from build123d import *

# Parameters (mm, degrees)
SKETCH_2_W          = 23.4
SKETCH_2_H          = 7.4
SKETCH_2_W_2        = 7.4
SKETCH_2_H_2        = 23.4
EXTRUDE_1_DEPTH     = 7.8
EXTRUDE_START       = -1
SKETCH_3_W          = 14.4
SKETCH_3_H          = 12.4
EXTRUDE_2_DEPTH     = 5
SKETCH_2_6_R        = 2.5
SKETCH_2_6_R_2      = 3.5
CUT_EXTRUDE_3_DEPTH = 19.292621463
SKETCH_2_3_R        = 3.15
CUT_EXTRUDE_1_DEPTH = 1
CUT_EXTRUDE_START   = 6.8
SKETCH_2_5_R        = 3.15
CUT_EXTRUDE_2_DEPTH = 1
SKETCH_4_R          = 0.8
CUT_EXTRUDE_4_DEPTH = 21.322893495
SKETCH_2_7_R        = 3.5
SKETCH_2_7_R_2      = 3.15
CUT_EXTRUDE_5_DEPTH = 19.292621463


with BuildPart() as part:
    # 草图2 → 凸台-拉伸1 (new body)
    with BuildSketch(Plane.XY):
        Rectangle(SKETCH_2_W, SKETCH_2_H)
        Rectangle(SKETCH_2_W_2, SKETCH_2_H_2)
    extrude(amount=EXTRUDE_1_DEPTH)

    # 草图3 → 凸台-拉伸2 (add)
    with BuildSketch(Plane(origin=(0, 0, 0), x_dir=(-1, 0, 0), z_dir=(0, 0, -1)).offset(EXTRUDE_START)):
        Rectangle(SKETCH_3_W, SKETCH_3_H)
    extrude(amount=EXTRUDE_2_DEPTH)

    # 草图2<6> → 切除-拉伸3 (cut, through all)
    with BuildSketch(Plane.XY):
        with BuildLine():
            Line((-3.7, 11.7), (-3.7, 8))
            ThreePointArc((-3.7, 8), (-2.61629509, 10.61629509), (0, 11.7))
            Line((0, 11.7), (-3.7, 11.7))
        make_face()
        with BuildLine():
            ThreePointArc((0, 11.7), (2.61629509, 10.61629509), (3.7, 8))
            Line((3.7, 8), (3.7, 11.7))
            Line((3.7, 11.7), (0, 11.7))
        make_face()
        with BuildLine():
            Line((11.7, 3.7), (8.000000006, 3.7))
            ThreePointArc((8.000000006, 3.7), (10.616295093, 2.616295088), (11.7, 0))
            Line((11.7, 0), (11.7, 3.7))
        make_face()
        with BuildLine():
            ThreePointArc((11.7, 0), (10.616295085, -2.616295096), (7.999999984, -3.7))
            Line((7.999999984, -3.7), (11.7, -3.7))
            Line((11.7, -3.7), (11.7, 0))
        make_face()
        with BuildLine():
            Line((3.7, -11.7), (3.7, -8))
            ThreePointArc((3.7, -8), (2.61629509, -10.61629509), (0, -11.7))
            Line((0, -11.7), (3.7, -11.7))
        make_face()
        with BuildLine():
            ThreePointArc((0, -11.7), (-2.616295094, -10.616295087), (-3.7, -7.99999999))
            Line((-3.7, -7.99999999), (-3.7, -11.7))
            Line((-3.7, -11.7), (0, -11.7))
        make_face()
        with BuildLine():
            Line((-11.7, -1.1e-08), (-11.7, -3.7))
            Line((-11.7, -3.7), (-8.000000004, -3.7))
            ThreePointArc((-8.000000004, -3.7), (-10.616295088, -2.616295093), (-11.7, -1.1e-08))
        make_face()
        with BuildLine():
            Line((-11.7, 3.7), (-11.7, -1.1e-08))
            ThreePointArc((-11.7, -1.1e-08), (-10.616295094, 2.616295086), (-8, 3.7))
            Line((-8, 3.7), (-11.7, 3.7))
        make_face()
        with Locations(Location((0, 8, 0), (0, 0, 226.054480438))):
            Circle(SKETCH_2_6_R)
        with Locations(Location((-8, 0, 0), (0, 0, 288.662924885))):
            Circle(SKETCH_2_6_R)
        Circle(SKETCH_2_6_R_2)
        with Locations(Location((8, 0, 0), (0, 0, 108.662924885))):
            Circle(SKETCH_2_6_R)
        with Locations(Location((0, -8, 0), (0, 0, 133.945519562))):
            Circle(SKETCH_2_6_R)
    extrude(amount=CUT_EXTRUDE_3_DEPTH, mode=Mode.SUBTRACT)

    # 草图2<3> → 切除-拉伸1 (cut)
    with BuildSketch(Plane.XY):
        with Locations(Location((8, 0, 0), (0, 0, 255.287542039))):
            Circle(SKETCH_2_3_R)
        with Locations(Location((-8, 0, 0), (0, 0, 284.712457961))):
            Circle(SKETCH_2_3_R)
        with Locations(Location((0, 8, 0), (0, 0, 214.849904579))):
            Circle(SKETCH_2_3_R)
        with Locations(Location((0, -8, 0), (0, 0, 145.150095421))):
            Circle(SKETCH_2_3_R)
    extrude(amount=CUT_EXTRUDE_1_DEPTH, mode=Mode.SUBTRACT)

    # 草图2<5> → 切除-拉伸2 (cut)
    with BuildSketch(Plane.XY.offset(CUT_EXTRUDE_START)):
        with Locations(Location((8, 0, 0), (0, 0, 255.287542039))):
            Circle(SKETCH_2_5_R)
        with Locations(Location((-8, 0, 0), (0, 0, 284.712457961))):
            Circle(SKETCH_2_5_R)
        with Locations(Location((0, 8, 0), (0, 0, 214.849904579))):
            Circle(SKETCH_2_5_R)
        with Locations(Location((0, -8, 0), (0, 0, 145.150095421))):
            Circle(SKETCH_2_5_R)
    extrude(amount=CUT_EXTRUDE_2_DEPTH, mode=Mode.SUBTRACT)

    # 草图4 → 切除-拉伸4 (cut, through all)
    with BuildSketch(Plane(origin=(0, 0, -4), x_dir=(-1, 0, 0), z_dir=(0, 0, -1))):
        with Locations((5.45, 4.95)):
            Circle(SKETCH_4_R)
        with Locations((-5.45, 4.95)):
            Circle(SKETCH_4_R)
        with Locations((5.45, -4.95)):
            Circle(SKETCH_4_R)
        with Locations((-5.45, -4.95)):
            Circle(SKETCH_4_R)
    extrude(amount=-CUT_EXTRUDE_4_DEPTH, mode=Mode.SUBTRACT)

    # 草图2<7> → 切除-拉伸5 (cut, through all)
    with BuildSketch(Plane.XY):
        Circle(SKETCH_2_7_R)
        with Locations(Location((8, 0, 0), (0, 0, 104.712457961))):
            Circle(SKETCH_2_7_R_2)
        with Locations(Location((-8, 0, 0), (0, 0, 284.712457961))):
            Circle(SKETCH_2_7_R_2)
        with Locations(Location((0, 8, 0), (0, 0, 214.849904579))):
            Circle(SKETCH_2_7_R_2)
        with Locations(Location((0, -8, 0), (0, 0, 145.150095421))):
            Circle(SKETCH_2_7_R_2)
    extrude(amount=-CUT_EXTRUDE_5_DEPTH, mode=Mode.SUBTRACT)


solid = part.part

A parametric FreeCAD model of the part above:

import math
import FreeCAD as App
import Part
import Sketcher
Q = App.Units.Quantity

doc = App.newDocument("Part")
body = doc.addObject("PartDesign::Body", "Body")

sketch1 = body.newObject("Sketcher::SketchObject", "Sketch")
sketch1.AttachmentSupport = (doc.getObject("XY_Plane"), [""])
sketch1.MapMode = "FlatFace"
sketch1.addGeometry([
    Part.LineSegment(App.Vector(-12, 4, 0), App.Vector(-12, -4, 0)),
    Part.LineSegment(App.Vector(-12, -4, 0), App.Vector(-4, -4, 0)),
    Part.LineSegment(App.Vector(-4, -4, 0), App.Vector(-4, -12, 0)),
    Part.LineSegment(App.Vector(-4, -12, 0), App.Vector(4, -12, 0)),
    Part.LineSegment(App.Vector(4, -12, 0), App.Vector(4, -4, 0)),
    Part.LineSegment(App.Vector(4, -4, 0), App.Vector(12, -4, 0)),
    Part.LineSegment(App.Vector(12, -4, 0), App.Vector(12, 4, 0)),
    Part.LineSegment(App.Vector(12, 4, 0), App.Vector(4, 4, 0)),
    Part.LineSegment(App.Vector(4, 4, 0), App.Vector(4, 12, 0)),
    Part.LineSegment(App.Vector(4, 12, 0), App.Vector(-4, 12, 0)),
    Part.LineSegment(App.Vector(-4, 12, 0), App.Vector(-4, 4, 0)),
    Part.LineSegment(App.Vector(-4, 4, 0), App.Vector(-12, 4, 0)),
], False)
sketch1.addConstraint([
    Sketcher.Constraint("Coincident", 0, 2, 1, 1),
    Sketcher.Constraint("Coincident", 1, 2, 2, 1),
    Sketcher.Constraint("Coincident", 2, 2, 3, 1),
    Sketcher.Constraint("Coincident", 3, 2, 4, 1),
    Sketcher.Constraint("Coincident", 4, 2, 5, 1),
    Sketcher.Constraint("Coincident", 5, 2, 6, 1),
    Sketcher.Constraint("Coincident", 6, 2, 7, 1),
    Sketcher.Constraint("Coincident", 7, 2, 8, 1),
    Sketcher.Constraint("Coincident", 8, 2, 9, 1),
    Sketcher.Constraint("Coincident", 9, 2, 10, 1),
    Sketcher.Constraint("Coincident", 10, 2, 11, 1),
    Sketcher.Constraint("Coincident", 11, 2, 0, 1),
    Sketcher.Constraint("Vertical", 0),
    Sketcher.Constraint("Horizontal", 1),
    Sketcher.Constraint("Vertical", 2),
    Sketcher.Constraint("Horizontal", 3),
    Sketcher.Constraint("Vertical", 4),
    Sketcher.Constraint("Horizontal", 5),
    Sketcher.Constraint("Vertical", 6),
    Sketcher.Constraint("Horizontal", 7),
    Sketcher.Constraint("Vertical", 8),
    Sketcher.Constraint("Horizontal", 9),
    Sketcher.Constraint("Vertical", 10),
    Sketcher.Constraint("Horizontal", 11),
    Sketcher.Constraint("Symmetric", 0, 2, 6, 2, -1, 1),
    Sketcher.Constraint("Symmetric", 2, 2, 8, 2, -1, 1),
    Sketcher.Constraint("Symmetric", 4, 2, 10, 2, -1, 1),
    Sketcher.Constraint("Symmetric", 1, 2, 4, 2, -2),
    Sketcher.Constraint("Equal", 9, 0),
    Sketcher.Constraint("Equal", 11, 2),
    Sketcher.Constraint("DistanceX", 1, 1, 1, 2, Q("8 mm")),
    Sketcher.Constraint("DistanceX", 3, 1, 3, 2, Q("7.4 mm")),
])
pad1 = body.newObject("PartDesign::Pad", "Pad")
pad1.Profile = sketch1
pad1.Length = 7.8

sketch2 = body.newObject("Sketcher::SketchObject", "Sketch001")
sketch2.AttachmentSupport = (doc.getObject("XY_Plane"), [""])
sketch2.MapMode = "FlatFace"
sketch2.AttachmentOffset = App.Placement(App.Vector(0, 0, 1), App.Rotation())
sketch2.addGeometry([
    Part.LineSegment(App.Vector(7, 6, 0), App.Vector(7, -6, 0)),
    Part.LineSegment(App.Vector(7, -6, 0), App.Vector(-7, -6, 0)),
    Part.LineSegment(App.Vector(-7, -6, 0), App.Vector(-7, 6, 0)),
    Part.LineSegment(App.Vector(-7, 6, 0), App.Vector(7, 6, 0)),
], False)
sketch2.addConstraint([
    Sketcher.Constraint("Coincident", 0, 2, 1, 1),
    Sketcher.Constraint("Coincident", 1, 2, 2, 1),
    Sketcher.Constraint("Coincident", 2, 2, 3, 1),
    Sketcher.Constraint("Coincident", 3, 2, 0, 1),
    Sketcher.Constraint("Vertical", 0),
    Sketcher.Constraint("Horizontal", 1),
    Sketcher.Constraint("Vertical", 2),
    Sketcher.Constraint("Horizontal", 3),
    Sketcher.Constraint("Symmetric", 0, 2, 2, 2, -1, 1),
    Sketcher.Constraint("DistanceX", 1, 2, 1, 1, Q("14.4 mm")),
    Sketcher.Constraint("DistanceY", 0, 2, 0, 1, Q("12.4 mm")),
])
pad2 = body.newObject("PartDesign::Pad", "Pad001")
pad2.Profile = sketch2
pad2.Length = 5
pad2.Reversed = True

sketch3 = body.newObject("Sketcher::SketchObject", "Sketch002")
sketch3.AttachmentSupport = (doc.getObject("XY_Plane"), [""])
sketch3.MapMode = "FlatFace"
sketch3.addGeometry([
    Part.LineSegment(App.Vector(-3.7, 11.7, 0), App.Vector(-3.7, 8, 0)),
    Part.ArcOfCircle(Part.Circle(App.Vector(0, 8, 0), App.Vector(0, 0, 1), 3.7), math.radians(90), math.radians(180)),
    Part.LineSegment(App.Vector(0, 11.7, 0), App.Vector(-3.7, 11.7, 0)),
    Part.ArcOfCircle(Part.Circle(App.Vector(0, 8, 0), App.Vector(0, 0, 1), 3.7), math.radians(0), math.radians(90)),
    Part.LineSegment(App.Vector(3.7, 8, 0), App.Vector(3.7, 11.7, 0)),
    Part.LineSegment(App.Vector(3.7, 11.7, 0), App.Vector(0, 11.7, 0)),
    Part.LineSegment(App.Vector(11.7, 3.7, 0), App.Vector(8, 3.7, 0)),
    Part.ArcOfCircle(Part.Circle(App.Vector(8, 0, 0), App.Vector(0, 0, 1), 3.7), math.radians(0), math.radians(90)),
    Part.LineSegment(App.Vector(11.7, 0, 0), App.Vector(11.7, 3.7, 0)),
    Part.ArcOfCircle(Part.Circle(App.Vector(8, 0, 0), App.Vector(0, 0, 1), 3.7), math.radians(-90), math.radians(0)),
    Part.LineSegment(App.Vector(8, -3.7, 0), App.Vector(11.7, -3.7, 0)),
    Part.LineSegment(App.Vector(11.7, -3.7, 0), App.Vector(11.7, 0, 0)),
    Part.LineSegment(App.Vector(3.7, -11.7, 0), App.Vector(3.7, -8, 0)),
    Part.ArcOfCircle(Part.Circle(App.Vector(0, -8, 0), App.Vector(0, 0, 1), 3.7), math.radians(-90), math.radians(0)),
    Part.LineSegment(App.Vector(0, -11.7, 0), App.Vector(3.7, -11.7, 0)),
    Part.ArcOfCircle(Part.Circle(App.Vector(0, -8, 0), App.Vector(0, 0, 1), 3.7), math.radians(180), math.radians(270)),
    Part.LineSegment(App.Vector(-3.7, -8, 0), App.Vector(-3.7, -11.7, 0)),
    Part.LineSegment(App.Vector(-3.7, -11.7, 0), App.Vector(0, -11.7, 0)),
    Part.LineSegment(App.Vector(-11.7, 0, 0), App.Vector(-11.7, -3.7, 0)),
    Part.LineSegment(App.Vector(-11.7, -3.7, 0), App.Vector(-8, -3.7, 0)),
    Part.ArcOfCircle(Part.Circle(App.Vector(-8, 0, 0), App.Vector(0, 0, 1), 3.7), math.radians(-180), math.radians(-90)),
    Part.LineSegment(App.Vector(-11.7, 3.7, 0), App.Vector(-11.7, 0, 0)),
    Part.ArcOfCircle(Part.Circle(App.Vector(-8, 0, 0), App.Vector(0, 0, 1), 3.7), math.radians(90), math.radians(180)),
    Part.LineSegment(App.Vector(-8, 3.7, 0), App.Vector(-11.7, 3.7, 0)),
    Part.Circle(App.Vector(0, 8, 0), App.Vector(0, 0, 1), 2.5),
    Part.Circle(App.Vector(-8, 0, 0), App.Vector(0, 0, 1), 2.5),
    Part.Circle(App.Vector(0, 0, 0), App.Vector(0, 0, 1), 3.5),
    Part.Circle(App.Vector(8, 0, 0), App.Vector(0, 0, 1), 2.5),
    Part.Circle(App.Vector(0, -8, 0), App.Vector(0, 0, 1), 2.5),
], False)
sketch3.addConstraint([
    Sketcher.Constraint("Tangent", 0, 2, 1, 2),
    Sketcher.Constraint("Tangent", 1, 1, 2, 1),
    Sketcher.Constraint("Coincident", 2, 2, 0, 1),
    Sketcher.Constraint("Tangent", 3, 1, 4, 1),
    Sketcher.Constraint("Coincident", 4, 2, 5, 1),
    Sketcher.Constraint("Tangent", 5, 2, 3, 2),
    Sketcher.Constraint("Tangent", 6, 2, 7, 2),
    Sketcher.Constraint("Tangent", 7, 1, 8, 1),
    Sketcher.Constraint("Coincident", 8, 2, 6, 1),
    Sketcher.Constraint("Tangent", 9, 1, 10, 1),
    Sketcher.Constraint("Coincident", 10, 2, 11, 1),
    Sketcher.Constraint("Tangent", 11, 2, 9, 2),
    Sketcher.Constraint("Tangent", 12, 2, 13, 2),
    Sketcher.Constraint("Tangent", 13, 1, 14, 1),
    Sketcher.Constraint("Coincident", 14, 2, 12, 1),
    Sketcher.Constraint("Tangent", 15, 1, 16, 1),
    Sketcher.Constraint("Coincident", 16, 2, 17, 1),
    Sketcher.Constraint("Tangent", 17, 2, 15, 2),
    Sketcher.Constraint("Coincident", 18, 2, 19, 1),
    Sketcher.Constraint("Tangent", 19, 2, 20, 2),
    Sketcher.Constraint("Tangent", 20, 1, 18, 1),
    Sketcher.Constraint("Tangent", 21, 2, 22, 2),
    Sketcher.Constraint("Tangent", 22, 1, 23, 1),
    Sketcher.Constraint("Coincident", 23, 2, 21, 1),
    Sketcher.Constraint("Vertical", 0),
    Sketcher.Constraint("Horizontal", 2),
    Sketcher.Constraint("Vertical", 4),
    Sketcher.Constraint("Horizontal", 5),
    Sketcher.Constraint("Horizontal", 6),
    Sketcher.Constraint("Vertical", 8),
    Sketcher.Constraint("Horizontal", 10),
    Sketcher.Constraint("Vertical", 11),
    Sketcher.Constraint("Vertical", 12),
    Sketcher.Constraint("Horizontal", 14),
    Sketcher.Constraint("Vertical", 16),
    Sketcher.Constraint("Horizontal", 17),
    Sketcher.Constraint("Vertical", 18),
    Sketcher.Constraint("Horizontal", 19),
    Sketcher.Constraint("Vertical", 21),
    Sketcher.Constraint("Horizontal", 23),
    Sketcher.Constraint("Coincident", 26, 3, -1, 1),
    Sketcher.Constraint("Coincident", 3, 3, 1, 3),
    Sketcher.Constraint("Coincident", 9, 3, 7, 3),
    Sketcher.Constraint("Coincident", 15, 3, 13, 3),
    Sketcher.Constraint("Coincident", 22, 3, 20, 3),
    Sketcher.Constraint("Coincident", 24, 3, 1, 3),
    Sketcher.Constraint("Coincident", 25, 3, 20, 3),
    Sketcher.Constraint("Coincident", 27, 3, 7, 3),
    Sketcher.Constraint("Coincident", 28, 3, 13, 3),
    Sketcher.Constraint("Equal", 1, 3),
    Sketcher.Constraint("Equal", 3, 7),
    Sketcher.Constraint("Equal", 7, 9),
    Sketcher.Constraint("Equal", 9, 13),
    Sketcher.Constraint("Equal", 13, 15),
    Sketcher.Constraint("Equal", 15, 20),
    Sketcher.Constraint("Equal", 20, 22),
    Sketcher.Constraint("Equal", 24, 25),
    Sketcher.Constraint("Equal", 25, 27),
    Sketcher.Constraint("Equal", 27, 28),
    Sketcher.Constraint("Symmetric", 1, 3, 13, 3, -1, 1),
    Sketcher.Constraint("Symmetric", 7, 3, 20, 3, -1, 1),
    Sketcher.Constraint("PointOnObject", 1, 3, -2),
    Sketcher.Constraint("PointOnObject", 7, 3, -1),
    Sketcher.Constraint("Diameter", 24, Q("5 mm")),
    Sketcher.Constraint("Diameter", 26, Q("7 mm")),
    Sketcher.Constraint("Radius", 1, Q("3.7 mm")),
    Sketcher.Constraint("DistanceY", -1, 1, 1, 3, Q("8 mm")),
    Sketcher.Constraint("DistanceX", -1, 1, 7, 3, Q("8 mm")),
])
pocket1 = body.newObject("PartDesign::Pocket", "Pocket")
pocket1.Profile = sketch3
pocket1.Type = "ThroughAll"
pocket1.Reversed = True

sketch4 = body.newObject("Sketcher::SketchObject", "Sketch003")
sketch4.AttachmentSupport = (doc.getObject("XY_Plane"), [""])
sketch4.MapMode = "FlatFace"
sketch4.addGeometry([
    Part.Circle(App.Vector(8, 0, 0), App.Vector(0, 0, 1), 3.1),
    Part.Circle(App.Vector(-8, 0, 0), App.Vector(0, 0, 1), 3.1),
    Part.Circle(App.Vector(0, 8, 0), App.Vector(0, 0, 1), 3.1),
    Part.Circle(App.Vector(0, -8, 0), App.Vector(0, 0, 1), 3.1),
], False)
sketch4.addConstraint([
    Sketcher.Constraint("Equal", 0, 1),
    Sketcher.Constraint("Equal", 1, 2),
    Sketcher.Constraint("Equal", 2, 3),
    Sketcher.Constraint("Symmetric", 0, 3, 1, 3, -1, 1),
    Sketcher.Constraint("Symmetric", 2, 3, 3, 3, -1, 1),
    Sketcher.Constraint("PointOnObject", 0, 3, -1),
    Sketcher.Constraint("PointOnObject", 2, 3, -2),
    Sketcher.Constraint("Diameter", 0, Q("6.3 mm")),
    Sketcher.Constraint("DistanceX", -1, 1, 0, 3, Q("8 mm")),
    Sketcher.Constraint("DistanceY", -1, 1, 2, 3, Q("8 mm")),
])
pocket2 = body.newObject("PartDesign::Pocket", "Pocket001")
pocket2.Profile = sketch4
pocket2.Length = 1
pocket2.Reversed = True

sketch5 = body.newObject("Sketcher::SketchObject", "Sketch004")
sketch5.AttachmentSupport = (doc.getObject("XY_Plane"), [""])
sketch5.MapMode = "FlatFace"
sketch5.AttachmentOffset = App.Placement(App.Vector(0, 0, 6.8), App.Rotation())
sketch5.addGeometry([
    Part.Circle(App.Vector(8, 0, 0), App.Vector(0, 0, 1), 3.1),
    Part.Circle(App.Vector(-8, 0, 0), App.Vector(0, 0, 1), 3.1),
    Part.Circle(App.Vector(0, 8, 0), App.Vector(0, 0, 1), 3.1),
    Part.Circle(App.Vector(0, -8, 0), App.Vector(0, 0, 1), 3.1),
], False)
sketch5.addConstraint([
    Sketcher.Constraint("Equal", 0, 1),
    Sketcher.Constraint("Equal", 1, 2),
    Sketcher.Constraint("Equal", 2, 3),
    Sketcher.Constraint("Symmetric", 0, 3, 1, 3, -1, 1),
    Sketcher.Constraint("Symmetric", 2, 3, 3, 3, -1, 1),
    Sketcher.Constraint("PointOnObject", 0, 3, -1),
    Sketcher.Constraint("PointOnObject", 2, 3, -2),
    Sketcher.Constraint("Diameter", 0, Q("6.3 mm")),
    Sketcher.Constraint("DistanceX", -1, 1, 0, 3, Q("8 mm")),
    Sketcher.Constraint("DistanceY", -1, 1, 2, 3, Q("8 mm")),
])
pocket3 = body.newObject("PartDesign::Pocket", "Pocket002")
pocket3.Profile = sketch5
pocket3.Length = 1
pocket3.Reversed = True

sketch6 = body.newObject("Sketcher::SketchObject", "Sketch005")
sketch6.AttachmentSupport = (doc.getObject("XY_Plane"), [""])
sketch6.MapMode = "FlatFace"
sketch6.AttachmentOffset = App.Placement(App.Vector(0, 0, -4), App.Rotation())
sketch6.addGeometry([
    Part.Circle(App.Vector(-5.5, 5, 0), App.Vector(0, 0, 1), 0.8),
    Part.Circle(App.Vector(5.5, 5, 0), App.Vector(0, 0, 1), 0.8),
    Part.Circle(App.Vector(-5.5, -5, 0), App.Vector(0, 0, 1), 0.8),
    Part.Circle(App.Vector(5.5, -5, 0), App.Vector(0, 0, 1), 0.8),
], False)
sketch6.addConstraint([
    Sketcher.Constraint("Equal", 0, 1),
    Sketcher.Constraint("Equal", 1, 2),
    Sketcher.Constraint("Equal", 2, 3),
    Sketcher.Constraint("Symmetric", 1, 3, 2, 3, -1, 1),
    Sketcher.Constraint("Symmetric", 0, 3, 3, 3, -1, 1),
    Sketcher.Constraint("Symmetric", 0, 3, 1, 3, -2),
    Sketcher.Constraint("Diameter", 0, Q("1.6 mm")),
    Sketcher.Constraint("DistanceX", 0, 3, 1, 3, Q("10.9 mm")),
    Sketcher.Constraint("DistanceY", 2, 3, 0, 3, Q("9.9 mm")),
])
pocket4 = body.newObject("PartDesign::Pocket", "Pocket003")
pocket4.Profile = sketch6
pocket4.Type = "ThroughAll"
pocket4.Reversed = True

sketch7 = body.newObject("Sketcher::SketchObject", "Sketch006")
sketch7.AttachmentSupport = (doc.getObject("XY_Plane"), [""])
sketch7.MapMode = "FlatFace"
sketch7.addGeometry([
    Part.Circle(App.Vector(0, 0, 0), App.Vector(0, 0, 1), 3.5),
    Part.Circle(App.Vector(8, 0, 0), App.Vector(0, 0, 1), 3.1),
    Part.Circle(App.Vector(-8, 0, 0), App.Vector(0, 0, 1), 3.1),
    Part.Circle(App.Vector(0, 8, 0), App.Vector(0, 0, 1), 3.1),
    Part.Circle(App.Vector(0, -8, 0), App.Vector(0, 0, 1), 3.1),
], False)
sketch7.addConstraint([
    Sketcher.Constraint("Coincident", 0, 3, -1, 1),
    Sketcher.Constraint("Equal", 1, 2),
    Sketcher.Constraint("Equal", 2, 3),
    Sketcher.Constraint("Equal", 3, 4),
    Sketcher.Constraint("Symmetric", 1, 3, 2, 3, -1, 1),
    Sketcher.Constraint("Symmetric", 3, 3, 4, 3, -1, 1),
    Sketcher.Constraint("PointOnObject", 1, 3, -1),
    Sketcher.Constraint("PointOnObject", 3, 3, -2),
    Sketcher.Constraint("Diameter", 0, Q("7 mm")),
    Sketcher.Constraint("Diameter", 1, Q("6.3 mm")),
    Sketcher.Constraint("DistanceX", -1, 1, 1, 3, Q("8 mm")),
    Sketcher.Constraint("DistanceY", -1, 1, 3, 3, Q("8 mm")),
])
pocket5 = body.newObject("PartDesign::Pocket", "Pocket004")
pocket5.Profile = sketch7
pocket5.Type = "ThroughAll"

doc.recompute()
